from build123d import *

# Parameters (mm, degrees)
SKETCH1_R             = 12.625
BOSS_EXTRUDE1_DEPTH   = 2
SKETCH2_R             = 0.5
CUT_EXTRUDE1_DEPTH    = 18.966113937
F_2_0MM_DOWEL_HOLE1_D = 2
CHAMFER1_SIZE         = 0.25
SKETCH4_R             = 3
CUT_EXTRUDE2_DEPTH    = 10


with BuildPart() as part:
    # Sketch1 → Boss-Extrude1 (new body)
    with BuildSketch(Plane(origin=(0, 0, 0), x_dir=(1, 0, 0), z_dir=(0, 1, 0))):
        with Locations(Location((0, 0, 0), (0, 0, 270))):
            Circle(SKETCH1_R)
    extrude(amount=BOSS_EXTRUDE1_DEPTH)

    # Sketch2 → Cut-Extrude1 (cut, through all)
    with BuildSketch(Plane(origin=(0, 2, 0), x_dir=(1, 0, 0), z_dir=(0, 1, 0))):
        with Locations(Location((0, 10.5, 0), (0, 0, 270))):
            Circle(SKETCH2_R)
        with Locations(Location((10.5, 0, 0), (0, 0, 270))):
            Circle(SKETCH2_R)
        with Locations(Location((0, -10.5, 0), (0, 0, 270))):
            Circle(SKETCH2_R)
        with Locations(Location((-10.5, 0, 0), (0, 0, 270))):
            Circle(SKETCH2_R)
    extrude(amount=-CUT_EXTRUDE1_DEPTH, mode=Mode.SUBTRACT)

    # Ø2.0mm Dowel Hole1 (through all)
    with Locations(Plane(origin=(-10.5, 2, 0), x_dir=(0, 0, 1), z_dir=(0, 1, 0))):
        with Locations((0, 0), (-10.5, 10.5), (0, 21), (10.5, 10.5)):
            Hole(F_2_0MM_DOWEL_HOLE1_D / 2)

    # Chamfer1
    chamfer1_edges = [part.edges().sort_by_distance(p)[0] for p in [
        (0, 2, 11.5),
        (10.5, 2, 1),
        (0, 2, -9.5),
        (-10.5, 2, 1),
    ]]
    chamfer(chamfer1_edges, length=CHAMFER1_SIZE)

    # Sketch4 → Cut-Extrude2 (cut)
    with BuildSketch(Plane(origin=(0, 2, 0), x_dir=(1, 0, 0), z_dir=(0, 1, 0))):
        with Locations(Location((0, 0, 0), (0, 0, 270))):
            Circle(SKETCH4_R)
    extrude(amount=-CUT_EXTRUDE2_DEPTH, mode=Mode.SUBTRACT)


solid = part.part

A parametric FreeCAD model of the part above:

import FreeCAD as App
import Part
import Sketcher

V = App.Vector
Q = App.Units.Quantity


def edges_at(feature, points):
    """Names of the edges that pass closest to the given points."""
    edges = feature.Shape.Edges
    near = lambda p: min(range(len(edges)), key=lambda i: edges[i].distToShape(Part.Vertex(*p))[0])
    return sorted({f"Edge{near(p) + 1}" for p in points})

doc = App.newDocument("Part")
body = doc.addObject("PartDesign::Body", "Body")

sketch1 = body.newObject("Sketcher::SketchObject", "Sketch")
sketch1.AttachmentSupport = (doc.getObject("XZ_Plane"), [""])
sketch1.MapMode = "FlatFace"
sketch1.addGeometry(Part.Circle(V(0, 0, 0), V(0, 0, 1), 12.625), False)
sketch1.addConstraint([
    Sketcher.Constraint("Coincident", 0, 3, -1, 1),
    Sketcher.Constraint("Diameter", 0, Q("25.25 mm")),
])
pad1 = body.newObject("PartDesign::Pad", "Pad")
pad1.Profile = sketch1
pad1.Length = 2
pad1.Reversed = True

sketch2 = body.newObject("Sketcher::SketchObject", "Sketch001")
sketch2.AttachmentSupport = (doc.getObject("XZ_Plane"), [""])
sketch2.MapMode = "FlatFace"
sketch2.AttachmentOffset = App.Placement(V(0, 0, -2), App.Rotation())
sketch2.addGeometry([
    Part.Circle(V(0, -10.5, 0), V(0, 0, 1), 0.5),
    Part.Circle(V(10.5, 0, 0), V(0, 0, 1), 0.5),
    Part.Circle(V(0, 10.5, 0), V(0, 0, 1), 0.5),
    Part.Circle(V(-10.5, 0, 0), V(0, 0, 1), 0.5),
], False)
sketch2.addConstraint([
    Sketcher.Constraint("Equal", 0, 1),
    Sketcher.Constraint("Equal", 1, 2),
    Sketcher.Constraint("Equal", 2, 3),
    Sketcher.Constraint("Symmetric", 0, 3, 2, 3, -1, 1),
    Sketcher.Constraint("Symmetric", 1, 3, 3, 3, -1, 1),
    Sketcher.Constraint("PointOnObject", 0, 3, -2),
    Sketcher.Constraint("PointOnObject", 1, 3, -1),
    Sketcher.Constraint("Diameter", 0, Q("1 mm")),
    Sketcher.Constraint("DistanceY", 0, 3, 2, 3, Q("21 mm")),
    Sketcher.Constraint("DistanceX", 3, 3, 1, 3, Q("21 mm")),
])
pocket1 = body.newObject("PartDesign::Pocket", "Pocket")
pocket1.Profile = sketch2
pocket1.Type = "ThroughAll"
pocket1.Reversed = True

sketch3 = body.newObject("Sketcher::SketchObject", "Sketch002")
sketch3.AttachmentSupport = (doc.getObject("XZ_Plane"), [""])
sketch3.MapMode = "FlatFace"
sketch3.AttachmentOffset = App.Placement(V(0, 0, -2), App.Rotation())
sketch3.addGeometry([
    Part.Circle(V(-10.5, 0, 0), V(0, 0, 1), 1),
    Part.Circle(V(0, -10.5, 0), V(0, 0, 1), 1),
    Part.Circle(V(10.5, 0, 0), V(0, 0, 1), 1),
    Part.Circle(V(0, 10.5, 0), V(0, 0, 1), 1),
], False)
sketch3.addConstraint([
    Sketcher.Constraint("Equal", 0, 1),
    Sketcher.Constraint("Equal", 1, 2),
    Sketcher.Constraint("Equal", 2, 3),
    Sketcher.Constraint("Symmetric", 0, 3, 2, 3, -1, 1),
    Sketcher.Constraint("Symmetric", 1, 3, 3, 3, -1, 1),
    Sketcher.Constraint("PointOnObject", 0, 3, -1),
    Sketcher.Constraint("PointOnObject", 1, 3, -2),
    Sketcher.Constraint("Diameter", 0, Q("2 mm")),
    Sketcher.Constraint("DistanceX", 0, 3, 2, 3, Q("21 mm")),
    Sketcher.Constraint("DistanceY", 1, 3, 3, 3, Q("21 mm")),
])
doc.recompute()
hole = body.newObject("PartDesign::Hole", "Hole")
hole.Profile = sketch3
hole.ThreadType = "None"
hole.Diameter = 2
hole.DepthType = "ThroughAll"
hole.Reversed = True
doc.recompute()

chamfer = body.newObject("PartDesign::Chamfer", "Chamfer")
chamfer.Base = (hole, edges_at(hole, [
    (0, 2, 11.5),
    (10.5, 2, 1),
    (0, 2, -9.5),
    (-10.5, 2, 1),
]))
chamfer.Size = 0.25

sketch4 = body.newObject("Sketcher::SketchObject", "Sketch003")
sketch4.AttachmentSupport = (doc.getObject("XZ_Plane"), [""])
sketch4.MapMode = "FlatFace"
sketch4.AttachmentOffset = App.Placement(V(0, 0, -2), App.Rotation())
sketch4.addGeometry(Part.Circle(V(0, 0, 0), V(0, 0, 1), 3), False)
sketch4.addConstraint([
    Sketcher.Constraint("Coincident", 0, 3, -1, 1),
    Sketcher.Constraint("Diameter", 0, Q("6 mm")),
])
pocket2 = body.newObject("PartDesign::Pocket", "Pocket001")
pocket2.Profile = sketch4
pocket2.Length = 10
pocket2.Reversed = True

doc.recompute()
